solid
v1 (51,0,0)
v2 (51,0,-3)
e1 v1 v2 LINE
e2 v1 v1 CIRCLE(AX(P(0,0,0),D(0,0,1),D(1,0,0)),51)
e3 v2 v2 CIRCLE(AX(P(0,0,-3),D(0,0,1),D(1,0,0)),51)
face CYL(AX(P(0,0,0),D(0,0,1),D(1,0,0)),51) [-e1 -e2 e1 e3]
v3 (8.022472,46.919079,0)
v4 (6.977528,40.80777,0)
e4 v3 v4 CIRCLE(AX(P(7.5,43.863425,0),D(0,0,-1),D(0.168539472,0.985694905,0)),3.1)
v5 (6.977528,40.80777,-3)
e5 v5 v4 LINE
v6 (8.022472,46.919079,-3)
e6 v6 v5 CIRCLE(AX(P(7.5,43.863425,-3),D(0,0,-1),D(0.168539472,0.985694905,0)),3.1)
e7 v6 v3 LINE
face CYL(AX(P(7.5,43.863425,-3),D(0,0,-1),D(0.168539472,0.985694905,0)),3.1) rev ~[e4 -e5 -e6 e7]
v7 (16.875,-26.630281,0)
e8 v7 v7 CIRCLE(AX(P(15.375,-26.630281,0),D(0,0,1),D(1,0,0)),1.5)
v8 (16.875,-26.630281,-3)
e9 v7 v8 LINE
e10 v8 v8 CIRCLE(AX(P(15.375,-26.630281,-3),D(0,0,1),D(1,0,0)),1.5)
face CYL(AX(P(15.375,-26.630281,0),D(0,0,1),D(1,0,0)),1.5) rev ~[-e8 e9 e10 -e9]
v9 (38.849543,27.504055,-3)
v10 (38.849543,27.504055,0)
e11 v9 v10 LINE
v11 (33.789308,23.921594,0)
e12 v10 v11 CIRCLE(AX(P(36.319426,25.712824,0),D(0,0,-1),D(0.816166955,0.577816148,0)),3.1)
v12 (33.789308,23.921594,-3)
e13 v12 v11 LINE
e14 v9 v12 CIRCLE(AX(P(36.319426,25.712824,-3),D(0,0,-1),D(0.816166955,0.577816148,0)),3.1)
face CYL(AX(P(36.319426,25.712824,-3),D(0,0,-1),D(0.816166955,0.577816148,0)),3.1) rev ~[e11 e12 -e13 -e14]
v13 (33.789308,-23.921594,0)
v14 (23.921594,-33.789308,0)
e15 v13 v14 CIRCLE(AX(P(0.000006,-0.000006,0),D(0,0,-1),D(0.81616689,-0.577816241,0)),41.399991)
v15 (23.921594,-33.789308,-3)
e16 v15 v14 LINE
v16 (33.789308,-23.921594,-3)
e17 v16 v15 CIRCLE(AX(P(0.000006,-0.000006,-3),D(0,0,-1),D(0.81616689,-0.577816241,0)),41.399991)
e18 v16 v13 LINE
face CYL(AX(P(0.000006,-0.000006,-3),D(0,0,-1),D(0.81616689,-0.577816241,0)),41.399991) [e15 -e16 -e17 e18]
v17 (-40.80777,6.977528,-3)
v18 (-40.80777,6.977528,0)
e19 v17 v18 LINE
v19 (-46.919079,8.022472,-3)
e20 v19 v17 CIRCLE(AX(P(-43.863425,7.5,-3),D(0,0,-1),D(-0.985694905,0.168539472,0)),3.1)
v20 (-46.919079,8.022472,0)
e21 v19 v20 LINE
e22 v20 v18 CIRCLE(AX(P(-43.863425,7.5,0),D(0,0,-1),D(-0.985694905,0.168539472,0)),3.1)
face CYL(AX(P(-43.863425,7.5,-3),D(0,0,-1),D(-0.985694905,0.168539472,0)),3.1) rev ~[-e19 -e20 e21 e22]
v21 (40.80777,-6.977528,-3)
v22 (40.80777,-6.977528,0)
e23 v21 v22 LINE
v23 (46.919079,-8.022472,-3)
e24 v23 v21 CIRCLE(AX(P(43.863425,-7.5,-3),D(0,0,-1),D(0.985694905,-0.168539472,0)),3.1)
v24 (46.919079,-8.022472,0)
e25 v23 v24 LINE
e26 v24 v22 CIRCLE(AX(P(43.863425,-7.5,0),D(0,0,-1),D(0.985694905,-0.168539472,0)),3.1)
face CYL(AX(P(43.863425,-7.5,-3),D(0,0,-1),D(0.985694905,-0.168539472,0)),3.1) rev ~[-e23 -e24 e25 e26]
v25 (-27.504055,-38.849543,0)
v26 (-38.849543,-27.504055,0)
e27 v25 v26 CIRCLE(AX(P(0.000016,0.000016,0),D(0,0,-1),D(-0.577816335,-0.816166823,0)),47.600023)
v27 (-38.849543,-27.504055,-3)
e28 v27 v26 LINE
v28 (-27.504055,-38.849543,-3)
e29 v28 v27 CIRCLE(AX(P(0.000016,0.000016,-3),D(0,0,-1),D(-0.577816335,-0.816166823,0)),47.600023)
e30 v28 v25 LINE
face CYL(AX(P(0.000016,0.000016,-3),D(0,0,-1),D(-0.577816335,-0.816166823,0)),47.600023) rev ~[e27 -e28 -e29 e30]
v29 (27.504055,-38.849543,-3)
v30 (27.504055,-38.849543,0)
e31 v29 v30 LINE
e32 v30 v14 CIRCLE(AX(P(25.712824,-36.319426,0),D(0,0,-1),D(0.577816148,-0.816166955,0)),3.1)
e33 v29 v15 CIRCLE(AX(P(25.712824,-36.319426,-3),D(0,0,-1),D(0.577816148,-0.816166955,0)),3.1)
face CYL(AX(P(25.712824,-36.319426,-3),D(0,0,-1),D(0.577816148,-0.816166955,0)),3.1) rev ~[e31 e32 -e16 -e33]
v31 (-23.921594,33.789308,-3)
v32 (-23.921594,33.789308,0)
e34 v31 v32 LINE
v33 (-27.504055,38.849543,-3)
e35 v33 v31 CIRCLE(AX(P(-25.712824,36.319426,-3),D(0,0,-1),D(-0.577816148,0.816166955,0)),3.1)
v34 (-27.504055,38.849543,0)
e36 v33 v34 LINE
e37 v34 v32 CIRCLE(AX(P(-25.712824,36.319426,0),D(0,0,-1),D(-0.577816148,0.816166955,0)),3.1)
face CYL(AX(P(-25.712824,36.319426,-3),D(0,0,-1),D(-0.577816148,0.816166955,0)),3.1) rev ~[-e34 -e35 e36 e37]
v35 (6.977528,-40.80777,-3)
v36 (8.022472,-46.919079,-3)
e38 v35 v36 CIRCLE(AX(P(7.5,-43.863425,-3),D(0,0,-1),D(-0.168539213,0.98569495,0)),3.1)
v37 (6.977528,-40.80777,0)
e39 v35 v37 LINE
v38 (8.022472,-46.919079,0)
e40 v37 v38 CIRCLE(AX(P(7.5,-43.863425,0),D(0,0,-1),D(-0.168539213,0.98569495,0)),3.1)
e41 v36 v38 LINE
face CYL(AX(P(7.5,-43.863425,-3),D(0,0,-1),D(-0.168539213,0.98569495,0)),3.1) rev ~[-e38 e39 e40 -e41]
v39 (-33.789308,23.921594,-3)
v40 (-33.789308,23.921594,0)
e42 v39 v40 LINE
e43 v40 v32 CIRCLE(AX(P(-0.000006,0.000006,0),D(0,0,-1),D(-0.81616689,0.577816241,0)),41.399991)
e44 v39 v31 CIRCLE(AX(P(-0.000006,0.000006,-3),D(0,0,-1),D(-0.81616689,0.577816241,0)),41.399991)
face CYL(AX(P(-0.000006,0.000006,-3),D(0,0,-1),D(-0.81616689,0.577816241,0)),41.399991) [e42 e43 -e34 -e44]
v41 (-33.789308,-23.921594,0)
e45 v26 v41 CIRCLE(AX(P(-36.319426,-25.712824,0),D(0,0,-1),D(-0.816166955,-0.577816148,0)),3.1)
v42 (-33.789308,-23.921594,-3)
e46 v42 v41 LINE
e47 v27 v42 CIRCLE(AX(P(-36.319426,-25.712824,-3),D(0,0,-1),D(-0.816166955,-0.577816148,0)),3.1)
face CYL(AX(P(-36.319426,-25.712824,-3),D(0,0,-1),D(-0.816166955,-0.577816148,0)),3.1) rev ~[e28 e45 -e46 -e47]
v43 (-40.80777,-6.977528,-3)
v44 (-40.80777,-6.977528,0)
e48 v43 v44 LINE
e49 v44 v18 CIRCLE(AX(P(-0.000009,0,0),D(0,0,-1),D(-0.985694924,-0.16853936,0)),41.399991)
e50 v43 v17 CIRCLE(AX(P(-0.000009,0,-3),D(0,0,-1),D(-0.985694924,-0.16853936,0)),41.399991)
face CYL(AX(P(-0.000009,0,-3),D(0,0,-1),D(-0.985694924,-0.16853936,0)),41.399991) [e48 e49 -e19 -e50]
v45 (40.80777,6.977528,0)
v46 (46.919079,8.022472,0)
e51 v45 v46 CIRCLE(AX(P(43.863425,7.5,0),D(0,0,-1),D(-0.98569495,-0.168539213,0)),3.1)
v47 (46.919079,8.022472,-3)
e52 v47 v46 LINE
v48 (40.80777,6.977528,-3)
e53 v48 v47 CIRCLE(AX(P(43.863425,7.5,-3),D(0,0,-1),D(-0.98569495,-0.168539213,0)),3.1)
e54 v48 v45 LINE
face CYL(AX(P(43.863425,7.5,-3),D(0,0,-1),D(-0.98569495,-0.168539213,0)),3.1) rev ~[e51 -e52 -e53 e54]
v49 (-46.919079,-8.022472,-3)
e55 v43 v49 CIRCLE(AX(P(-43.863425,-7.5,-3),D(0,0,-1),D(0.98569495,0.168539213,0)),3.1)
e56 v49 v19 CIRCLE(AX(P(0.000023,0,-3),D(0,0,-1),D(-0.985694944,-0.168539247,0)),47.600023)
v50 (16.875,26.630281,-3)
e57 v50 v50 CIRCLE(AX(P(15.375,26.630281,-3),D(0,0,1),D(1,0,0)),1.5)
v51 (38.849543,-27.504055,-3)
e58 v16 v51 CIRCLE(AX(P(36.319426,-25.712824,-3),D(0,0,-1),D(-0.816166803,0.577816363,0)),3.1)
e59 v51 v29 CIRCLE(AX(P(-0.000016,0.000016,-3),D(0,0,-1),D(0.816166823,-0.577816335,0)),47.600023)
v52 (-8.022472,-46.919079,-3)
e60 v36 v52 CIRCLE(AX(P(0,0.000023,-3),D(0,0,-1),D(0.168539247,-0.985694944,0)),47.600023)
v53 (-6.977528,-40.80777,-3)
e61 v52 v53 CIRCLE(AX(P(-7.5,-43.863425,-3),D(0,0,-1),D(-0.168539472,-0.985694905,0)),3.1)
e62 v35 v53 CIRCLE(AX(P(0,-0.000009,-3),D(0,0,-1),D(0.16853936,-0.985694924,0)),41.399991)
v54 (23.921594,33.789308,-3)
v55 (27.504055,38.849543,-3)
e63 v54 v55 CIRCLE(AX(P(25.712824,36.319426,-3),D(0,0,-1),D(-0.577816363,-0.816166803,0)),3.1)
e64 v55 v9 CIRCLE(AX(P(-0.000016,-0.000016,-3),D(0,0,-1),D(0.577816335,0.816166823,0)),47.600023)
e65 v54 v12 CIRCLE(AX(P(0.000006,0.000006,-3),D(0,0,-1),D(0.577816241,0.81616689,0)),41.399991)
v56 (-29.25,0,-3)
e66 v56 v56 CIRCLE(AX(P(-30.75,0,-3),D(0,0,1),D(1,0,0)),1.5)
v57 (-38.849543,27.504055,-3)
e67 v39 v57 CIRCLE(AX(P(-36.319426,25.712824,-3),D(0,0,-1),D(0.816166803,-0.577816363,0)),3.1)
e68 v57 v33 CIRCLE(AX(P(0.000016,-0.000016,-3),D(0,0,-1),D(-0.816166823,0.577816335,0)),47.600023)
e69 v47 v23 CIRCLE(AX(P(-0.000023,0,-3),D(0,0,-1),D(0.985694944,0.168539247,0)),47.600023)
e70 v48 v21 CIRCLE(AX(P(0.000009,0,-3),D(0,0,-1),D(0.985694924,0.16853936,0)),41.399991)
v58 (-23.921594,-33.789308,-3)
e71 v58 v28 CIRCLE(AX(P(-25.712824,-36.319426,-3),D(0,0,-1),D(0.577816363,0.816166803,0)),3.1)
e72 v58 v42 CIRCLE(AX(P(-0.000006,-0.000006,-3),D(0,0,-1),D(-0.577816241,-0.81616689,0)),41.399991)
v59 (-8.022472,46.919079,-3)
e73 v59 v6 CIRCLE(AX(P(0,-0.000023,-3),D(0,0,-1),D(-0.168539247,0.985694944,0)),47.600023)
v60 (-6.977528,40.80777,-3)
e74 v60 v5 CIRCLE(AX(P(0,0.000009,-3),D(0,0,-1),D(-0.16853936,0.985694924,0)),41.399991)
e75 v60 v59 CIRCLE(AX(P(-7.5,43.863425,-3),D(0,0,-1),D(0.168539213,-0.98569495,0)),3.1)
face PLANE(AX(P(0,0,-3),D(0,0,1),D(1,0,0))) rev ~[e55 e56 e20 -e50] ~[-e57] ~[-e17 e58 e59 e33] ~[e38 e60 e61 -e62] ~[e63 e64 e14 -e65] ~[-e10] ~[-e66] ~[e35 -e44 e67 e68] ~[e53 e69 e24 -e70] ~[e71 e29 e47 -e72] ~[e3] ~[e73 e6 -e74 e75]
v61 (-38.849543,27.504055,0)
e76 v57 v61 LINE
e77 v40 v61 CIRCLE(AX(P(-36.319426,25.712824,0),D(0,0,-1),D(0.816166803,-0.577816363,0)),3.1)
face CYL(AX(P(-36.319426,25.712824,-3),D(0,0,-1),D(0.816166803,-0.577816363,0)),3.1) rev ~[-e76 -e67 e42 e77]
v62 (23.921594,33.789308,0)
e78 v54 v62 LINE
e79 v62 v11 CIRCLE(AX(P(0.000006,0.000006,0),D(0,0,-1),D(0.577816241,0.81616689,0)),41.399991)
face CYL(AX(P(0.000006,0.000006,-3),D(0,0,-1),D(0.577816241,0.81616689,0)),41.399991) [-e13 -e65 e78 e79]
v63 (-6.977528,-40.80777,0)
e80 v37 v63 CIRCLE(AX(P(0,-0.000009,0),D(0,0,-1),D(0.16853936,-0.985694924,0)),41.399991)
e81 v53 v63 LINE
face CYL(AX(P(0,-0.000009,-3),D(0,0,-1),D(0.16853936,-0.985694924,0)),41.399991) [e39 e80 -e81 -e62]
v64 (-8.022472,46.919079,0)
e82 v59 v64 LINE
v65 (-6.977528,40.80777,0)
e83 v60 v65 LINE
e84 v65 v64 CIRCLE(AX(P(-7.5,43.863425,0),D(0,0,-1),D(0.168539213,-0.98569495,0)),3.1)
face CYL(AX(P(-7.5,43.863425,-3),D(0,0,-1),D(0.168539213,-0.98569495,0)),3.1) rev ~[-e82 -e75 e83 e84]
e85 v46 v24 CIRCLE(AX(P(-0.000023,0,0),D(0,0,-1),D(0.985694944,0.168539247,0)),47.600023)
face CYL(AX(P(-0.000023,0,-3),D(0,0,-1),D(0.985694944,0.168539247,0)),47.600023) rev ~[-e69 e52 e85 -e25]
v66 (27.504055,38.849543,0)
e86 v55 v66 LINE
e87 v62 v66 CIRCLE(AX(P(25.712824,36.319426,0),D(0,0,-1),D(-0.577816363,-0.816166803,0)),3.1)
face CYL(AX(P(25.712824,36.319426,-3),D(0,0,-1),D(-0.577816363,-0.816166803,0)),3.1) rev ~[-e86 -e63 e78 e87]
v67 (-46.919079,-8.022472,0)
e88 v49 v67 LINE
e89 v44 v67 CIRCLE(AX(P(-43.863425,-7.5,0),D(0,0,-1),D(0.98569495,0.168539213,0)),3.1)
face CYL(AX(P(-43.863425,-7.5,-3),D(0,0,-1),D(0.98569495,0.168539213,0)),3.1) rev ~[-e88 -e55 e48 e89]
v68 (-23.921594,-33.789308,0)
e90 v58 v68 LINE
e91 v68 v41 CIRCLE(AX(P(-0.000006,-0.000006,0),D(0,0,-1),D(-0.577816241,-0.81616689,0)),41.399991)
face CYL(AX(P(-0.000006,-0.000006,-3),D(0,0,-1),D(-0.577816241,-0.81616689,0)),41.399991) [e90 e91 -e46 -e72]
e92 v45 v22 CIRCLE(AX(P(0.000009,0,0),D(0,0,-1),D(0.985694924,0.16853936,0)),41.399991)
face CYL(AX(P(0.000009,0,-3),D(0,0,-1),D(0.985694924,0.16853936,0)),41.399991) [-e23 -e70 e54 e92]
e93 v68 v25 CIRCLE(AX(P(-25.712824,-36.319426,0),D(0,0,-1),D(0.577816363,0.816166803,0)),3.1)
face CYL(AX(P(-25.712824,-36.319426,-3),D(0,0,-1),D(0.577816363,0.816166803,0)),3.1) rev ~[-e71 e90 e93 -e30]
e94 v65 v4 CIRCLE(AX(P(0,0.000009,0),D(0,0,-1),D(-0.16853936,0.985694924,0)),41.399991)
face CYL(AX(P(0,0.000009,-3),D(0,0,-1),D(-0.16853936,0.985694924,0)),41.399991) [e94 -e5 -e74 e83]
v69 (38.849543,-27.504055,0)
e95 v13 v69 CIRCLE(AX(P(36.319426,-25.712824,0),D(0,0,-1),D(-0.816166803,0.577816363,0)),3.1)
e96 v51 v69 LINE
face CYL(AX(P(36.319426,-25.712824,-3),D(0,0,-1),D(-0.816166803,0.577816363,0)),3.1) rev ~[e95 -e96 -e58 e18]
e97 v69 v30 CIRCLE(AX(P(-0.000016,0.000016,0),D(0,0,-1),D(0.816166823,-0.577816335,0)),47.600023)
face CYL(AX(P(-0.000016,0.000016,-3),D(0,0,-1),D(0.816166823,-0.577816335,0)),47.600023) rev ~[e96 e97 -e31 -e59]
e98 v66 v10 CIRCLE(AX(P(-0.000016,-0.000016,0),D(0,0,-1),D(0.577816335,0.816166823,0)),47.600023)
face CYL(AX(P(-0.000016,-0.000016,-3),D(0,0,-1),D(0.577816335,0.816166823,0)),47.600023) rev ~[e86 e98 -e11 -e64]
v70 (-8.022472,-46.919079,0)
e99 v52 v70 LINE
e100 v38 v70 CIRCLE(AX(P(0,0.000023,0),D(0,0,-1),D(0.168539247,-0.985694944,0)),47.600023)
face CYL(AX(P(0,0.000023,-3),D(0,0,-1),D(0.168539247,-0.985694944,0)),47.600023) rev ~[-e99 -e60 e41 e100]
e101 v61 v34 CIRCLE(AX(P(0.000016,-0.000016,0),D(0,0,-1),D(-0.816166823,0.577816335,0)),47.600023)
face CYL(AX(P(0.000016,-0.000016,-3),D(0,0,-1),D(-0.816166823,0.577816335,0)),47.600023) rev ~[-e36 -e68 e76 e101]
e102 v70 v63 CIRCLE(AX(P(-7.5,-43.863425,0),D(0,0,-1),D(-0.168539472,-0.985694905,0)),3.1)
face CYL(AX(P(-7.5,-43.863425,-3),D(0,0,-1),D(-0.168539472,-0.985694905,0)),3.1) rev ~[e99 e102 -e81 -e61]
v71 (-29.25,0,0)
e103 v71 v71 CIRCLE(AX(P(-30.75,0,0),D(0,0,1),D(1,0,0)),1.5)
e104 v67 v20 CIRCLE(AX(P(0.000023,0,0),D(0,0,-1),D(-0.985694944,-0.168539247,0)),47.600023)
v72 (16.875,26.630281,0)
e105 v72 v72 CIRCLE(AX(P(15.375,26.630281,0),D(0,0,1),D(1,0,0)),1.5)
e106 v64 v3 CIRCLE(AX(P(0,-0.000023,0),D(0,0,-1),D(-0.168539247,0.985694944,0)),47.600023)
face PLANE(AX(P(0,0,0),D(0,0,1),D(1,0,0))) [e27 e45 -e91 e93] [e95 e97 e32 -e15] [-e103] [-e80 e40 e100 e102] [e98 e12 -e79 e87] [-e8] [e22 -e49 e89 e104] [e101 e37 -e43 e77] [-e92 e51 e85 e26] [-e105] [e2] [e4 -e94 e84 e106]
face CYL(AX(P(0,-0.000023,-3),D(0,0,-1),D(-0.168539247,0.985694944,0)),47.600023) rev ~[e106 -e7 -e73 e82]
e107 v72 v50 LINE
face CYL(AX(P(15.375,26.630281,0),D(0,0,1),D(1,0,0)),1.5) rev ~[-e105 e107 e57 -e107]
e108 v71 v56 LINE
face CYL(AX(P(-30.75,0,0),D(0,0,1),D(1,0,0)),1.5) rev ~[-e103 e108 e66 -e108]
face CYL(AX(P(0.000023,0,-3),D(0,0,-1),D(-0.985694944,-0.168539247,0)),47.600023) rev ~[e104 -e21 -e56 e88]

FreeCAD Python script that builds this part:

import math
import FreeCAD as App
import Part
import Sketcher

V = App.Vector

doc = App.newDocument("Part")
body = doc.addObject("PartDesign::Body", "Body")

sketch1 = body.newObject("Sketcher::SketchObject", "Sketch")
sketch1.AttachmentSupport = (doc.getObject("XY_Plane"), [""])
sketch1.MapMode = "FlatFace"
sketch1.addGeometry([
    Part.Circle(V(0, 0, 0), V(0, 0, 1), 51),
    Part.Circle(V(-30.8, 0, 0), V(0, 0, 1), 1.5),
    Part.Circle(V(15.4, -26.6, 0), V(0, 0, 1), 1.5),
    Part.Circle(V(15.4, 26.6, 0), V(0, 0, 1), 1.5),
], False)
sketch1.addConstraint([
    Sketcher.Constraint("Coincident", 0, 3, -1, 1),
    Sketcher.Constraint("Equal", 1, 2),
    Sketcher.Constraint("Equal", 2, 3),
    Sketcher.Constraint("Symmetric", 2, 3, 3, 3, -1),
    Sketcher.Constraint("PointOnObject", 1, 3, -1),
    Sketcher.Constraint("Diameter", 0, 102.0),
    Sketcher.Constraint("Diameter", 1, 3.0),
    Sketcher.Constraint("DistanceX", 1, 3, -1, 1, 30.75),
    Sketcher.Constraint("DistanceX", -1, 1, 2, 3, 15.375),
    Sketcher.Constraint("DistanceY", 2, 3, -1, 1, 26.630281),
])
pad1 = body.newObject("PartDesign::Pad", "Pad")
pad1.Profile = sketch1
pad1.Length = 3
pad1.Reversed = True

sketch2 = body.newObject("Sketcher::SketchObject", "Sketch001")
sketch2.AttachmentSupport = (doc.getObject("XY_Plane"), [""])
sketch2.MapMode = "FlatFace"
sketch2.AttachmentOffset = App.Placement(V(0, 0, -3), App.Rotation())
sketch2.addGeometry([
    Part.ArcOfCircle(Part.Circle(V(0, 0, 0), V(0, 0, 1), 47.6), math.radians(-99.7), math.radians(-80.3)),
    Part.ArcOfCircle(Part.Circle(V(-7.5, -43.9, 0), V(0, 0, 1), 3.1), math.radians(80), math.radians(260)),
    Part.ArcOfCircle(Part.Circle(V(0, 0, 0), V(0, 0, 1), 41.4), math.radians(-99.7), math.radians(-80.3)),
    Part.ArcOfCircle(Part.Circle(V(7.5, -43.9, 0), V(0, 0, 1), 3.1), math.radians(-80), math.radians(100)),
], False)
sketch2.addConstraint([
    Sketcher.Constraint("Tangent", 0, 1, 1, 2),
    Sketcher.Constraint("Tangent", 1, 1, 2, 1),
    Sketcher.Constraint("Tangent", 2, 2, 3, 2),
    Sketcher.Constraint("Tangent", 3, 1, 0, 2),
    Sketcher.Constraint("Coincident", 2, 3, -1, 1),
    Sketcher.Constraint("Equal", 1, 3),
    Sketcher.Constraint("Horizontal", 1, 3, 3, 3),
    Sketcher.Constraint("Radius", 1, 3.1),
    Sketcher.Constraint("DistanceX", 1, 3, 3, 3, 14.999999),
    Sketcher.Constraint("Radius", 2, 41.399991),
    Sketcher.Constraint("Radius", 0, 47.600023),
])
pocket1 = body.newObject("PartDesign::Pocket", "Pocket")
pocket1.Profile = sketch2
pocket1.Type = "ThroughAll"
pocket1.Reversed = True
doc.recompute()

polarpattern = body.newObject("PartDesign::PolarPattern", "PolarPattern")
polarpattern.Originals = [pocket1]
polarpattern.Axis = (doc.getObject("Z_Axis"), [""])
polarpattern.Angle = 360
polarpattern.Occurrences = 8
body.Tip = polarpattern

doc.recompute()
